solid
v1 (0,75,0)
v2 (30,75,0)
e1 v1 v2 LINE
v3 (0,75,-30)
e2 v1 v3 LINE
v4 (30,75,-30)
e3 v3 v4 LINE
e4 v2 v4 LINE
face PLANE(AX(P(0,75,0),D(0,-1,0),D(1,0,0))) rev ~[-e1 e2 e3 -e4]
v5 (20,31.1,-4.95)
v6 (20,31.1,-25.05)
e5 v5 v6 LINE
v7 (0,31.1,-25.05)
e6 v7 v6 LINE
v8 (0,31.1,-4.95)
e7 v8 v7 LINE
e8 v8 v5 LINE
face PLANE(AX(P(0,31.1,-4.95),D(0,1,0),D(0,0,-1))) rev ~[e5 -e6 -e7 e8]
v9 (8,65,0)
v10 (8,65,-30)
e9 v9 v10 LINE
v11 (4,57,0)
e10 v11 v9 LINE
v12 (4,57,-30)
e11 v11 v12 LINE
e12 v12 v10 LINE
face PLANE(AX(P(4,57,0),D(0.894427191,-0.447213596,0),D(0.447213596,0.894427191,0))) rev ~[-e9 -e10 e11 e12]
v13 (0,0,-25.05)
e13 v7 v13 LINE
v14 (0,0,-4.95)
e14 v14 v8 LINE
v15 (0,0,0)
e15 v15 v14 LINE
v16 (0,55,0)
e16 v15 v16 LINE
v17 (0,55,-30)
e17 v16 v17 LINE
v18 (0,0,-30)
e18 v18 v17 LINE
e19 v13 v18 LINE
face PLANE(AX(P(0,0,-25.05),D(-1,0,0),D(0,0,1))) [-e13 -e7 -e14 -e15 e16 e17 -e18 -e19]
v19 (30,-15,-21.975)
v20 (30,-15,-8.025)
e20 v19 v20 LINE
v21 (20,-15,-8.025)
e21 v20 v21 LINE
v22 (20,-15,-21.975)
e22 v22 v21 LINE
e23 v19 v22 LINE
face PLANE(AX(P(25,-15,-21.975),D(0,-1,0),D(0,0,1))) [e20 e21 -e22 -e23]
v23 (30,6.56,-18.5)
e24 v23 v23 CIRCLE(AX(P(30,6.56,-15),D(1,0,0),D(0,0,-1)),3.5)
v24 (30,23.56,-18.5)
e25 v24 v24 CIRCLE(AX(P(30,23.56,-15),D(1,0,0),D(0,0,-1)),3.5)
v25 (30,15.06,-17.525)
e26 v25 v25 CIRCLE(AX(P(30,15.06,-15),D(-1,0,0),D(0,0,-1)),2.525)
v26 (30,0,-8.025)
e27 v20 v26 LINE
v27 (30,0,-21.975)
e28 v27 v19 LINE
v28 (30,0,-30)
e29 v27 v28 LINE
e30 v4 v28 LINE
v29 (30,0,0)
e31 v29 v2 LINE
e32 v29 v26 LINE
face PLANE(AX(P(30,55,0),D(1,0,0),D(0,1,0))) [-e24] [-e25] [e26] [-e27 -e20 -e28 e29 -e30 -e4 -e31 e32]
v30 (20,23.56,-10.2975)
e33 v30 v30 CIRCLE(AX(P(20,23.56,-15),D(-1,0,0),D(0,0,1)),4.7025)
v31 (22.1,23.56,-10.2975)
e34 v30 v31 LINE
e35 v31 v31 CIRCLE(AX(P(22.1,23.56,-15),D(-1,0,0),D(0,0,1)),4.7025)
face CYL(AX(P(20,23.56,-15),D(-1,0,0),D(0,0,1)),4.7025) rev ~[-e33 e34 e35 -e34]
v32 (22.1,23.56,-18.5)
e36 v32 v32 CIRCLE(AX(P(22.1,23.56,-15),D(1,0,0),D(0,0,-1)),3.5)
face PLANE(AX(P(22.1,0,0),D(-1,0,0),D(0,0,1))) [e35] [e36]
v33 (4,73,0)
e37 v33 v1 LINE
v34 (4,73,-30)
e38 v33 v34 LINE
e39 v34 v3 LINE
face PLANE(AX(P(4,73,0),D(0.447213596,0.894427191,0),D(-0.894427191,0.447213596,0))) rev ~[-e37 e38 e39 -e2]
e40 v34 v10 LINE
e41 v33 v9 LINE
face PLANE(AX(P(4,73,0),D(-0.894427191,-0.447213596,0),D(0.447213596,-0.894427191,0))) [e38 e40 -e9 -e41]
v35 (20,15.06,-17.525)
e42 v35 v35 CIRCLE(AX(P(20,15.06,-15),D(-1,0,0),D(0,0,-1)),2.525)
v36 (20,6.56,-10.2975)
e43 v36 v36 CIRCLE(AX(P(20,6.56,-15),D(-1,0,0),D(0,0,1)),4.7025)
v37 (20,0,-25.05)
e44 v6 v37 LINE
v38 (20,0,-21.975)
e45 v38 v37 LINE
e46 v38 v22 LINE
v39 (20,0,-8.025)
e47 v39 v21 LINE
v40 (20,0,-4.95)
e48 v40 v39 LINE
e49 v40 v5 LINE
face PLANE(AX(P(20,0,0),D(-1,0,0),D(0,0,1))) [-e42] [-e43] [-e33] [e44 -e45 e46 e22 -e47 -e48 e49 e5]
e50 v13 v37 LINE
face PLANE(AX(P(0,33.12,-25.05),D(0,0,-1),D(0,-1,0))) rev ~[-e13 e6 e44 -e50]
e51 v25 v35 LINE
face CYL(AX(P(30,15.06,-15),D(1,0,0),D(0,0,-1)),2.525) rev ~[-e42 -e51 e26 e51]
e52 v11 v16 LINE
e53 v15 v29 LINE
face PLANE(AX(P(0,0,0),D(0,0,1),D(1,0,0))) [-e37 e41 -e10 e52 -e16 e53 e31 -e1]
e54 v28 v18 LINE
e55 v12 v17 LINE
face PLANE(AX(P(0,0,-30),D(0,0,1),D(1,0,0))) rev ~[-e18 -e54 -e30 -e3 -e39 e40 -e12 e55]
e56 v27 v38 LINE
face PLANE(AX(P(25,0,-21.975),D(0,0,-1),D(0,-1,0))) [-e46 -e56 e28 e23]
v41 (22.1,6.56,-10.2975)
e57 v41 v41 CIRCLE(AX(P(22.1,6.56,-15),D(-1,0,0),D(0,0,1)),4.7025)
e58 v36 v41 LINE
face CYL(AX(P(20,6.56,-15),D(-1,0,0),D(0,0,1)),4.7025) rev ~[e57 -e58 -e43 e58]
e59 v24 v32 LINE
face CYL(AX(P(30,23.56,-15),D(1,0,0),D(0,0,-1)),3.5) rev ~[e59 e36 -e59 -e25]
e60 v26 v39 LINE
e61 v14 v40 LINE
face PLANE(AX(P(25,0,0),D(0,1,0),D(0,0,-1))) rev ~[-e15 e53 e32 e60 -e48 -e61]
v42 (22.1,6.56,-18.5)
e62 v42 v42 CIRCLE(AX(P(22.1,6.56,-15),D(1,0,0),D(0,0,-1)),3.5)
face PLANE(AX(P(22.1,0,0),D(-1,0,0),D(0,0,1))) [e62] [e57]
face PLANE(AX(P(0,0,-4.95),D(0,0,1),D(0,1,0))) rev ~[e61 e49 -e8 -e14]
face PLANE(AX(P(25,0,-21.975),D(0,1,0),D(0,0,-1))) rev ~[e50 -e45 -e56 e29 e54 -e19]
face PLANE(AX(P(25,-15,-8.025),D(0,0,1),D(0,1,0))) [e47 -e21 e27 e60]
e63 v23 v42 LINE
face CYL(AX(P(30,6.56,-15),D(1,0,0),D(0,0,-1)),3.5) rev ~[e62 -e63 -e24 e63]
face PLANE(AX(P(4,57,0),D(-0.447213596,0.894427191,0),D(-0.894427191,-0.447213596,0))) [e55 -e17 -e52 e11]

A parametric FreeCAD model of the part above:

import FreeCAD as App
import Part
import Sketcher
Q = App.Units.Quantity

doc = App.newDocument("Part")
body = doc.addObject("PartDesign::Body", "Body")

sketch1 = body.newObject("Sketcher::SketchObject", "Sketch")
sketch1.AttachmentSupport = (doc.getObject("XY_Plane"), [""])
sketch1.MapMode = "FlatFace"
sketch1.addGeometry([
    Part.LineSegment(App.Vector(0, 40, 0), App.Vector(0, 0, 0)),
    Part.LineSegment(App.Vector(0, 0, 0), App.Vector(25, 0, 0)),
    Part.LineSegment(App.Vector(25, 0, 0), App.Vector(25, 40, 0)),
    Part.LineSegment(App.Vector(25, 40, 0), App.Vector(0, 40, 0)),
], False)
sketch1.addConstraint([
    Sketcher.Constraint("Coincident", 0, 2, 1, 1),
    Sketcher.Constraint("Coincident", 1, 2, 2, 1),
    Sketcher.Constraint("Coincident", 2, 2, 3, 1),
    Sketcher.Constraint("Coincident", 3, 2, 0, 1),
    Sketcher.Constraint("Vertical", 0),
    Sketcher.Constraint("Horizontal", 1),
    Sketcher.Constraint("Vertical", 2),
    Sketcher.Constraint("Horizontal", 3),
    Sketcher.Constraint("Coincident", 0, 2, -1, 1),
    Sketcher.Constraint("DistanceX", 1, 1, 1, 2, Q("25 mm")),
    Sketcher.Constraint("DistanceY", 0, 2, 0, 1, Q("40 mm")),
])
pad1 = body.newObject("PartDesign::Pad", "Pad")
pad1.Profile = sketch1
pad1.Length = 30
pad1.Reversed = True

sketch2 = body.newObject("Sketcher::SketchObject", "Sketch001")
sketch2.AttachmentSupport = (doc.getObject("YZ_Plane"), [""])
sketch2.MapMode = "FlatFace"
sketch2.AttachmentOffset = App.Placement(App.Vector(0, 0, 25), App.Rotation())
sketch2.addGeometry(Part.Circle(App.Vector(6.6, -15, 0), App.Vector(0, 0, 1), 2.5), False)
sketch2.addConstraint([
    Sketcher.Constraint("Diameter", 0, Q("4.92 mm")),
    Sketcher.Constraint("DistanceY", 0, 3, -1, 1, Q("15 mm")),
    Sketcher.Constraint("DistanceX", -1, 1, 0, 3, Q("6.56 mm")),
])
pocket1 = body.newObject("PartDesign::Pocket", "Pocket")
pocket1.Profile = sketch2
pocket1.Length = 30

sketch3 = body.newObject("Sketcher::SketchObject", "Sketch002")
sketch3.AttachmentSupport = (doc.getObject("YZ_Plane"), [""])
sketch3.MapMode = "FlatFace"
sketch3.addGeometry([
    Part.LineSegment(App.Vector(0, -25, 0), App.Vector(0, -5, 0)),
    Part.LineSegment(App.Vector(0, -5, 0), App.Vector(33, -5, 0)),
    Part.LineSegment(App.Vector(33, -5, 0), App.Vector(33, -25, 0)),
    Part.LineSegment(App.Vector(33, -25, 0), App.Vector(0, -25, 0)),
], False)
sketch3.addConstraint([
    Sketcher.Constraint("Coincident", 0, 2, 1, 1),
    Sketcher.Constraint("Coincident", 1, 2, 2, 1),
    Sketcher.Constraint("Coincident", 2, 2, 3, 1),
    Sketcher.Constraint("Coincident", 3, 2, 0, 1),
    Sketcher.Constraint("Vertical", 0),
    Sketcher.Constraint("Horizontal", 1),
    Sketcher.Constraint("Vertical", 2),
    Sketcher.Constraint("Horizontal", 3),
    Sketcher.Constraint("PointOnObject", 0, 2, -2),
    Sketcher.Constraint("DistanceY", 0, 1, 0, 2, Q("20.1 mm")),
    Sketcher.Constraint("DistanceX", 1, 1, 1, 2, Q("33.12 mm")),
    Sketcher.Constraint("DistanceY", 0, 2, -1, 1, Q("4.95 mm")),
])
pocket2 = body.newObject("PartDesign::Pocket", "Pocket001")
pocket2.Profile = sketch3
pocket2.Length = 20
pocket2.Reversed = True

sketch4 = body.newObject("Sketcher::SketchObject", "Sketch003")
sketch4.AttachmentSupport = (doc.getObject("XZ_Plane"), [""])
sketch4.MapMode = "FlatFace"
sketch4.addGeometry([
    Part.LineSegment(App.Vector(25, -8, 0), App.Vector(20, -8, 0)),
    Part.LineSegment(App.Vector(20, -8, 0), App.Vector(20, -22, 0)),
    Part.LineSegment(App.Vector(20, -22, 0), App.Vector(25, -22, 0)),
    Part.LineSegment(App.Vector(25, -22, 0), App.Vector(25, -8, 0)),
], False)
sketch4.addConstraint([
    Sketcher.Constraint("Coincident", 0, 2, 1, 1),
    Sketcher.Constraint("Coincident", 1, 2, 2, 1),
    Sketcher.Constraint("Coincident", 2, 2, 3, 1),
    Sketcher.Constraint("Coincident", 3, 2, 0, 1),
    Sketcher.Constraint("Horizontal", 0),
    Sketcher.Constraint("Vertical", 1),
    Sketcher.Constraint("Horizontal", 2),
    Sketcher.Constraint("Vertical", 3),
    Sketcher.Constraint("DistanceY", 1, 2, 1, 1, Q("13.95 mm")),
    Sketcher.Constraint("DistanceX", 0, 2, 0, 1, Q("5 mm")),
    Sketcher.Constraint("DistanceX", -1, 1, 0, 2, Q("20 mm")),
    Sketcher.Constraint("DistanceY", 0, 2, -1, 1, Q("8.025 mm")),
])
pad2 = body.newObject("PartDesign::Pad", "Pad001")
pad2.Profile = sketch4
pad2.Length = 15

sketch5 = body.newObject("Sketcher::SketchObject", "Sketch004")
sketch5.AttachmentSupport = (doc.getObject("YZ_Plane"), [""])
sketch5.MapMode = "FlatFace"
sketch5.AttachmentOffset = App.Placement(App.Vector(0, 0, 20), App.Rotation())
sketch5.addGeometry([
    Part.Circle(App.Vector(6.6, -15, 0), App.Vector(0, 0, 1), 4.7),
    Part.Circle(App.Vector(6.6, -15, 0), App.Vector(0, 0, 1), 2.5),
], False)
sketch5.addConstraint([
    Sketcher.Constraint("Coincident", 1, 3, 0, 3),
    Sketcher.Constraint("Diameter", 0, Q("9.405 mm")),
    Sketcher.Constraint("Diameter", 1, Q("4.92 mm")),
    Sketcher.Constraint("DistanceY", 0, 3, -1, 1, Q("15 mm")),
    Sketcher.Constraint("DistanceX", -1, 1, 0, 3, Q("6.56 mm")),
])
pocket3 = body.newObject("PartDesign::Pocket", "Pocket002")
pocket3.Profile = sketch5
pocket3.Length = 2.1
pocket3.Reversed = True

sketch6 = body.newObject("Sketcher::SketchObject", "Sketch005")
sketch6.AttachmentSupport = (doc.getObject("YZ_Plane"), [""])
sketch6.MapMode = "FlatFace"
sketch6.AttachmentOffset = App.Placement(App.Vector(0, 0, 25), App.Rotation())
sketch6.addGeometry(Part.Circle(App.Vector(23.6, -15, 0), App.Vector(0, 0, 1), 2.5), False)
sketch6.addConstraint([
    Sketcher.Constraint("Diameter", 0, Q("4.92 mm")),
    Sketcher.Constraint("DistanceY", 0, 3, -1, 1, Q("15 mm")),
    Sketcher.Constraint("DistanceX", -1, 1, 0, 3, Q("23.56 mm")),
])
pocket4 = body.newObject("PartDesign::Pocket", "Pocket003")
pocket4.Profile = sketch6
pocket4.Length = 10

sketch7 = body.newObject("Sketcher::SketchObject", "Sketch006")
sketch7.AttachmentSupport = (doc.getObject("YZ_Plane"), [""])
sketch7.MapMode = "FlatFace"
sketch7.AttachmentOffset = App.Placement(App.Vector(0, 0, 20), App.Rotation())
sketch7.addGeometry([
    Part.Circle(App.Vector(23.6, -15, 0), App.Vector(0, 0, 1), 4.7),
    Part.Circle(App.Vector(23.6, -15, 0), App.Vector(0, 0, 1), 2.5),
], False)
sketch7.addConstraint([
    Sketcher.Constraint("Coincident", 1, 3, 0, 3),
    Sketcher.Constraint("Diameter", 0, Q("9.405 mm")),
    Sketcher.Constraint("Diameter", 1, Q("4.92 mm")),
    Sketcher.Constraint("DistanceY", 0, 3, -1, 1, Q("15 mm")),
    Sketcher.Constraint("DistanceX", -1, 1, 0, 3, Q("23.56 mm")),
])
pocket5 = body.newObject("PartDesign::Pocket", "Pocket004")
pocket5.Profile = sketch7
pocket5.Length = 2.1
pocket5.Reversed = True

sketch8 = body.newObject("Sketcher::SketchObject", "Sketch007")
sketch8.AttachmentSupport = (doc.getObject("YZ_Plane"), [""])
sketch8.MapMode = "FlatFace"
sketch8.AttachmentOffset = App.Placement(App.Vector(0, 0, 25), App.Rotation())
sketch8.addGeometry([
    Part.LineSegment(App.Vector(0, -30, 0), App.Vector(40, -30, 0)),
    Part.LineSegment(App.Vector(40, -30, 0), App.Vector(40, 0, 0)),
    Part.LineSegment(App.Vector(40, 0, 0), App.Vector(0, 0, 0)),
    Part.LineSegment(App.Vector(0, 0, 0), App.Vector(0, -8, 0)),
    Part.LineSegment(App.Vector(0, -8, 0), App.Vector(-15, -8, 0)),
    Part.LineSegment(App.Vector(-15, -8, 0), App.Vector(-15, -22, 0)),
    Part.LineSegment(App.Vector(-15, -22, 0), App.Vector(0, -22, 0)),
    Part.LineSegment(App.Vector(0, -22, 0), App.Vector(0, -30, 0)),
    Part.Circle(App.Vector(6.6, -15, 0), App.Vector(0, 0, 1), 2.5),
    Part.Circle(App.Vector(23.6, -15, 0), App.Vector(0, 0, 1), 2.5),
], False)
sketch8.addConstraint([
    Sketcher.Constraint("Coincident", 0, 2, 1, 1),
    Sketcher.Constraint("Coincident", 1, 2, 2, 1),
    Sketcher.Constraint("Coincident", 2, 2, 3, 1),
    Sketcher.Constraint("Coincident", 3, 2, 4, 1),
    Sketcher.Constraint("Coincident", 4, 2, 5, 1),
    Sketcher.Constraint("Coincident", 5, 2, 6, 1),
    Sketcher.Constraint("Coincident", 6, 2, 7, 1),
    Sketcher.Constraint("Coincident", 7, 2, 0, 1),
    Sketcher.Constraint("Horizontal", 0),
    Sketcher.Constraint("Vertical", 1),
    Sketcher.Constraint("Horizontal", 2),
    Sketcher.Constraint("Vertical", 3),
    Sketcher.Constraint("Horizontal", 4),
    Sketcher.Constraint("Vertical", 5),
    Sketcher.Constraint("Horizontal", 6),
    Sketcher.Constraint("Vertical", 7),
    Sketcher.Constraint("Coincident", 2, 2, -1, 1),
    Sketcher.Constraint("Equal", 8, 9),
    Sketcher.Constraint("PointOnObject", 6, 2, -2),
    Sketcher.Constraint("Horizontal", 8, 3, 9, 3),
    Sketcher.Constraint("Equal", 3, 7),
    Sketcher.Constraint("Diameter", 8, Q("4.92 mm")),
    Sketcher.Constraint("DistanceX", 0, 1, 0, 2, Q("40 mm")),
    Sketcher.Constraint("DistanceX", 4, 2, 4, 1, Q("15 mm")),
    Sketcher.Constraint("DistanceY", 1, 1, 1, 2, Q("30 mm")),
    Sketcher.Constraint("DistanceY", 8, 3, -1, 1, Q("15 mm")),
    Sketcher.Constraint("DistanceX", 8, 3, 9, 3, Q("17 mm")),
    Sketcher.Constraint("DistanceY", 5, 2, 5, 1, Q("13.95 mm")),
    Sketcher.Constraint("DistanceX", -1, 1, 8, 3, Q("6.56 mm")),
])
pad3 = body.newObject("PartDesign::Pad", "Pad002")
pad3.Profile = sketch8
pad3.Length = 5

sketch9 = body.newObject("Sketcher::SketchObject", "Sketch008")
sketch9.AttachmentSupport = (doc.getObject("XZ_Plane"), [""])
sketch9.MapMode = "FlatFace"
sketch9.AttachmentOffset = App.Placement(App.Vector(0, 0, -40), App.Rotation())
sketch9.addGeometry([
    Part.LineSegment(App.Vector(30, -30, 0), App.Vector(0, -30, 0)),
    Part.LineSegment(App.Vector(0, -30, 0), App.Vector(0, 0, 0)),
    Part.LineSegment(App.Vector(0, 0, 0), App.Vector(30, 0, 0)),
    Part.LineSegment(App.Vector(30, 0, 0), App.Vector(30, -30, 0)),
], False)
sketch9.addConstraint([
    Sketcher.Constraint("Coincident", 0, 2, 1, 1),
    Sketcher.Constraint("Coincident", 1, 2, 2, 1),
    Sketcher.Constraint("Coincident", 2, 2, 3, 1),
    Sketcher.Constraint("Coincident", 3, 2, 0, 1),
    Sketcher.Constraint("Horizontal", 0),
    Sketcher.Constraint("Vertical", 1),
    Sketcher.Constraint("Horizontal", 2),
    Sketcher.Constraint("Vertical", 3),
    Sketcher.Constraint("Coincident", 1, 2, -1, 1),
    Sketcher.Constraint("Equal", 2, 1),
    Sketcher.Constraint("DistanceX", 0, 2, 0, 1, Q("30 mm")),
])
pad4 = body.newObject("PartDesign::Pad", "Pad003")
pad4.Profile = sketch9
pad4.Length = 15
pad4.Reversed = True

sketch10 = body.newObject("Sketcher::SketchObject", "Sketch009")
sketch10.AttachmentSupport = (doc.getObject("YZ_Plane"), [""])
sketch10.MapMode = "FlatFace"
sketch10.AttachmentOffset = App.Placement(App.Vector(0, 0, 30), App.Rotation())
sketch10.addGeometry(Part.Circle(App.Vector(15.1, -15, 0), App.Vector(0, 0, 1), 2.5), False)
sketch10.addConstraint([
    Sketcher.Constraint("Diameter", 0, Q("5.05 mm")),
    Sketcher.Constraint("DistanceY", 0, 3, -1, 1, Q("15 mm")),
    Sketcher.Constraint("DistanceX", -1, 1, 0, 3, Q("15.06 mm")),
])
pocket6 = body.newObject("PartDesign::Pocket", "Pocket005")
pocket6.Profile = sketch10
pocket6.Length = 30

sketch11 = body.newObject("Sketcher::SketchObject", "Sketch010")
sketch11.AttachmentSupport = (doc.getObject("YZ_Plane"), [""])
sketch11.MapMode = "FlatFace"
sketch11.addGeometry([
    Part.LineSegment(App.Vector(33.1, -5, 0), App.Vector(33.1, -25.1, 0)),
    Part.LineSegment(App.Vector(33.1, -25.1, 0), App.Vector(31.1, -25.1, 0)),
    Part.LineSegment(App.Vector(31.1, -25.1, 0), App.Vector(31.1, -5, 0)),
    Part.LineSegment(App.Vector(31.1, -5, 0), App.Vector(33.1, -5, 0)),
], False)
sketch11.addConstraint([
    Sketcher.Constraint("Coincident", 0, 2, 1, 1),
    Sketcher.Constraint("Coincident", 1, 2, 2, 1),
    Sketcher.Constraint("Coincident", 2, 2, 3, 1),
    Sketcher.Constraint("Coincident", 3, 2, 0, 1),
    Sketcher.Constraint("Vertical", 0),
    Sketcher.Constraint("Horizontal", 1),
    Sketcher.Constraint("Vertical", 2),
    Sketcher.Constraint("Horizontal", 3),
    Sketcher.Constraint("DistanceX", 1, 2, 1, 1, Q("2.02 mm")),
    Sketcher.Constraint("DistanceY", 0, 2, 0, 1, Q("20.1 mm")),
    Sketcher.Constraint("DistanceX", -1, 1, 1, 2, Q("31.1 mm")),
    Sketcher.Constraint("DistanceY", 0, 2, -1, 1, Q("25.05 mm")),
])
pad5 = body.newObject("PartDesign::Pad", "Pad004")
pad5.Profile = sketch11
pad5.Length = 20

sketch12 = body.newObject("Sketcher::SketchObject", "Sketch011")
sketch12.AttachmentSupport = (doc.getObject("XY_Plane"), [""])
sketch12.MapMode = "FlatFace"
sketch12.addGeometry([
    Part.LineSegment(App.Vector(4, 57, 0), App.Vector(0, 55, 0)),
    Part.LineSegment(App.Vector(0, 55, 0), App.Vector(30, 55, 0)),
    Part.LineSegment(App.Vector(30, 55, 0), App.Vector(30, 75, 0)),
    Part.LineSegment(App.Vector(30, 75, 0), App.Vector(0, 75, 0)),
    Part.LineSegment(App.Vector(0, 75, 0), App.Vector(4, 73, 0)),
    Part.LineSegment(App.Vector(4, 73, 0), App.Vector(8, 65, 0)),
    Part.LineSegment(App.Vector(8, 65, 0), App.Vector(4, 57, 0)),
], False)
sketch12.addConstraint([
    Sketcher.Constraint("Coincident", 0, 2, 1, 1),
    Sketcher.Constraint("Coincident", 1, 2, 2, 1),
    Sketcher.Constraint("Coincident", 2, 2, 3, 1),
    Sketcher.Constraint("Coincident", 3, 2, 4, 1),
    Sketcher.Constraint("Coincident", 4, 2, 5, 1),
    Sketcher.Constraint("Coincident", 5, 2, 6, 1),
    Sketcher.Constraint("Coincident", 6, 2, 0, 1),
    Sketcher.Constraint("Horizontal", 1),
    Sketcher.Constraint("Vertical", 2),
    Sketcher.Constraint("Horizontal", 3),
    Sketcher.Constraint("PointOnObject", 0, 2, -2),
    Sketcher.Constraint("PointOnObject", 3, 2, -2),
    Sketcher.Constraint("Perpendicular", 0, 5),
    Sketcher.Constraint("Perpendicular", 4, 6),
    Sketcher.Constraint("Vertical", 4, 2, 6, 2),
    Sketcher.Constraint("Equal", 0, 4),
    Sketcher.Constraint("DistanceX", 1, 1, 1, 2, Q("30 mm")),
    Sketcher.Constraint("DistanceY", 2, 1, 2, 2, Q("20 mm")),
    Sketcher.Constraint("DistanceY", -1, 1, 0, 2, Q("55 mm")),
    Sketcher.Constraint("DistanceX", -1, 1, 4, 2, Q("4 mm")),
    Sketcher.Constraint("DistanceY", -1, 1, 4, 2, Q("73 mm")),
])
pad6 = body.newObject("PartDesign::Pad", "Pad005")
pad6.Profile = sketch12
pad6.Length = 30
pad6.Reversed = True

sketch13 = body.newObject("Sketcher::SketchObject", "Sketch012")
sketch13.AttachmentSupport = (doc.getObject("YZ_Plane"), [""])
sketch13.MapMode = "FlatFace"
sketch13.AttachmentOffset = App.Placement(App.Vector(0, 0, 30), App.Rotation())
sketch13.addGeometry([
    Part.Circle(App.Vector(6.6, -15, 0), App.Vector(0, 0, 1), 3.5),
    Part.Circle(App.Vector(6.6, -15, 0), App.Vector(0, 0, 1), 2.5),
    Part.Circle(App.Vector(23.6, -15, 0), App.Vector(0, 0, 1), 3.5),
    Part.Circle(App.Vector(23.6, -15, 0), App.Vector(0, 0, 1), 2.5),
], False)
sketch13.addConstraint([
    Sketcher.Constraint("Coincident", 1, 3, 0, 3),
    Sketcher.Constraint("Coincident", 3, 3, 2, 3),
    Sketcher.Constraint("Equal", 0, 2),
    Sketcher.Constraint("Equal", 1, 3),
    Sketcher.Constraint("Horizontal", 1, 3, 2, 3),
    Sketcher.Constraint("Diameter", 0, Q("7 mm")),
    Sketcher.Constraint("Diameter", 1, Q("4.92 mm")),
    Sketcher.Constraint("DistanceY", 0, 3, -1, 1, Q("15 mm")),
    Sketcher.Constraint("DistanceX", 0, 3, 2, 3, Q("17 mm")),
    Sketcher.Constraint("DistanceX", -1, 1, 0, 3, Q("6.56 mm")),
])
pocket7 = body.newObject("PartDesign::Pocket", "Pocket006")
pocket7.Profile = sketch13
pocket7.Length = 10

doc.recompute()
